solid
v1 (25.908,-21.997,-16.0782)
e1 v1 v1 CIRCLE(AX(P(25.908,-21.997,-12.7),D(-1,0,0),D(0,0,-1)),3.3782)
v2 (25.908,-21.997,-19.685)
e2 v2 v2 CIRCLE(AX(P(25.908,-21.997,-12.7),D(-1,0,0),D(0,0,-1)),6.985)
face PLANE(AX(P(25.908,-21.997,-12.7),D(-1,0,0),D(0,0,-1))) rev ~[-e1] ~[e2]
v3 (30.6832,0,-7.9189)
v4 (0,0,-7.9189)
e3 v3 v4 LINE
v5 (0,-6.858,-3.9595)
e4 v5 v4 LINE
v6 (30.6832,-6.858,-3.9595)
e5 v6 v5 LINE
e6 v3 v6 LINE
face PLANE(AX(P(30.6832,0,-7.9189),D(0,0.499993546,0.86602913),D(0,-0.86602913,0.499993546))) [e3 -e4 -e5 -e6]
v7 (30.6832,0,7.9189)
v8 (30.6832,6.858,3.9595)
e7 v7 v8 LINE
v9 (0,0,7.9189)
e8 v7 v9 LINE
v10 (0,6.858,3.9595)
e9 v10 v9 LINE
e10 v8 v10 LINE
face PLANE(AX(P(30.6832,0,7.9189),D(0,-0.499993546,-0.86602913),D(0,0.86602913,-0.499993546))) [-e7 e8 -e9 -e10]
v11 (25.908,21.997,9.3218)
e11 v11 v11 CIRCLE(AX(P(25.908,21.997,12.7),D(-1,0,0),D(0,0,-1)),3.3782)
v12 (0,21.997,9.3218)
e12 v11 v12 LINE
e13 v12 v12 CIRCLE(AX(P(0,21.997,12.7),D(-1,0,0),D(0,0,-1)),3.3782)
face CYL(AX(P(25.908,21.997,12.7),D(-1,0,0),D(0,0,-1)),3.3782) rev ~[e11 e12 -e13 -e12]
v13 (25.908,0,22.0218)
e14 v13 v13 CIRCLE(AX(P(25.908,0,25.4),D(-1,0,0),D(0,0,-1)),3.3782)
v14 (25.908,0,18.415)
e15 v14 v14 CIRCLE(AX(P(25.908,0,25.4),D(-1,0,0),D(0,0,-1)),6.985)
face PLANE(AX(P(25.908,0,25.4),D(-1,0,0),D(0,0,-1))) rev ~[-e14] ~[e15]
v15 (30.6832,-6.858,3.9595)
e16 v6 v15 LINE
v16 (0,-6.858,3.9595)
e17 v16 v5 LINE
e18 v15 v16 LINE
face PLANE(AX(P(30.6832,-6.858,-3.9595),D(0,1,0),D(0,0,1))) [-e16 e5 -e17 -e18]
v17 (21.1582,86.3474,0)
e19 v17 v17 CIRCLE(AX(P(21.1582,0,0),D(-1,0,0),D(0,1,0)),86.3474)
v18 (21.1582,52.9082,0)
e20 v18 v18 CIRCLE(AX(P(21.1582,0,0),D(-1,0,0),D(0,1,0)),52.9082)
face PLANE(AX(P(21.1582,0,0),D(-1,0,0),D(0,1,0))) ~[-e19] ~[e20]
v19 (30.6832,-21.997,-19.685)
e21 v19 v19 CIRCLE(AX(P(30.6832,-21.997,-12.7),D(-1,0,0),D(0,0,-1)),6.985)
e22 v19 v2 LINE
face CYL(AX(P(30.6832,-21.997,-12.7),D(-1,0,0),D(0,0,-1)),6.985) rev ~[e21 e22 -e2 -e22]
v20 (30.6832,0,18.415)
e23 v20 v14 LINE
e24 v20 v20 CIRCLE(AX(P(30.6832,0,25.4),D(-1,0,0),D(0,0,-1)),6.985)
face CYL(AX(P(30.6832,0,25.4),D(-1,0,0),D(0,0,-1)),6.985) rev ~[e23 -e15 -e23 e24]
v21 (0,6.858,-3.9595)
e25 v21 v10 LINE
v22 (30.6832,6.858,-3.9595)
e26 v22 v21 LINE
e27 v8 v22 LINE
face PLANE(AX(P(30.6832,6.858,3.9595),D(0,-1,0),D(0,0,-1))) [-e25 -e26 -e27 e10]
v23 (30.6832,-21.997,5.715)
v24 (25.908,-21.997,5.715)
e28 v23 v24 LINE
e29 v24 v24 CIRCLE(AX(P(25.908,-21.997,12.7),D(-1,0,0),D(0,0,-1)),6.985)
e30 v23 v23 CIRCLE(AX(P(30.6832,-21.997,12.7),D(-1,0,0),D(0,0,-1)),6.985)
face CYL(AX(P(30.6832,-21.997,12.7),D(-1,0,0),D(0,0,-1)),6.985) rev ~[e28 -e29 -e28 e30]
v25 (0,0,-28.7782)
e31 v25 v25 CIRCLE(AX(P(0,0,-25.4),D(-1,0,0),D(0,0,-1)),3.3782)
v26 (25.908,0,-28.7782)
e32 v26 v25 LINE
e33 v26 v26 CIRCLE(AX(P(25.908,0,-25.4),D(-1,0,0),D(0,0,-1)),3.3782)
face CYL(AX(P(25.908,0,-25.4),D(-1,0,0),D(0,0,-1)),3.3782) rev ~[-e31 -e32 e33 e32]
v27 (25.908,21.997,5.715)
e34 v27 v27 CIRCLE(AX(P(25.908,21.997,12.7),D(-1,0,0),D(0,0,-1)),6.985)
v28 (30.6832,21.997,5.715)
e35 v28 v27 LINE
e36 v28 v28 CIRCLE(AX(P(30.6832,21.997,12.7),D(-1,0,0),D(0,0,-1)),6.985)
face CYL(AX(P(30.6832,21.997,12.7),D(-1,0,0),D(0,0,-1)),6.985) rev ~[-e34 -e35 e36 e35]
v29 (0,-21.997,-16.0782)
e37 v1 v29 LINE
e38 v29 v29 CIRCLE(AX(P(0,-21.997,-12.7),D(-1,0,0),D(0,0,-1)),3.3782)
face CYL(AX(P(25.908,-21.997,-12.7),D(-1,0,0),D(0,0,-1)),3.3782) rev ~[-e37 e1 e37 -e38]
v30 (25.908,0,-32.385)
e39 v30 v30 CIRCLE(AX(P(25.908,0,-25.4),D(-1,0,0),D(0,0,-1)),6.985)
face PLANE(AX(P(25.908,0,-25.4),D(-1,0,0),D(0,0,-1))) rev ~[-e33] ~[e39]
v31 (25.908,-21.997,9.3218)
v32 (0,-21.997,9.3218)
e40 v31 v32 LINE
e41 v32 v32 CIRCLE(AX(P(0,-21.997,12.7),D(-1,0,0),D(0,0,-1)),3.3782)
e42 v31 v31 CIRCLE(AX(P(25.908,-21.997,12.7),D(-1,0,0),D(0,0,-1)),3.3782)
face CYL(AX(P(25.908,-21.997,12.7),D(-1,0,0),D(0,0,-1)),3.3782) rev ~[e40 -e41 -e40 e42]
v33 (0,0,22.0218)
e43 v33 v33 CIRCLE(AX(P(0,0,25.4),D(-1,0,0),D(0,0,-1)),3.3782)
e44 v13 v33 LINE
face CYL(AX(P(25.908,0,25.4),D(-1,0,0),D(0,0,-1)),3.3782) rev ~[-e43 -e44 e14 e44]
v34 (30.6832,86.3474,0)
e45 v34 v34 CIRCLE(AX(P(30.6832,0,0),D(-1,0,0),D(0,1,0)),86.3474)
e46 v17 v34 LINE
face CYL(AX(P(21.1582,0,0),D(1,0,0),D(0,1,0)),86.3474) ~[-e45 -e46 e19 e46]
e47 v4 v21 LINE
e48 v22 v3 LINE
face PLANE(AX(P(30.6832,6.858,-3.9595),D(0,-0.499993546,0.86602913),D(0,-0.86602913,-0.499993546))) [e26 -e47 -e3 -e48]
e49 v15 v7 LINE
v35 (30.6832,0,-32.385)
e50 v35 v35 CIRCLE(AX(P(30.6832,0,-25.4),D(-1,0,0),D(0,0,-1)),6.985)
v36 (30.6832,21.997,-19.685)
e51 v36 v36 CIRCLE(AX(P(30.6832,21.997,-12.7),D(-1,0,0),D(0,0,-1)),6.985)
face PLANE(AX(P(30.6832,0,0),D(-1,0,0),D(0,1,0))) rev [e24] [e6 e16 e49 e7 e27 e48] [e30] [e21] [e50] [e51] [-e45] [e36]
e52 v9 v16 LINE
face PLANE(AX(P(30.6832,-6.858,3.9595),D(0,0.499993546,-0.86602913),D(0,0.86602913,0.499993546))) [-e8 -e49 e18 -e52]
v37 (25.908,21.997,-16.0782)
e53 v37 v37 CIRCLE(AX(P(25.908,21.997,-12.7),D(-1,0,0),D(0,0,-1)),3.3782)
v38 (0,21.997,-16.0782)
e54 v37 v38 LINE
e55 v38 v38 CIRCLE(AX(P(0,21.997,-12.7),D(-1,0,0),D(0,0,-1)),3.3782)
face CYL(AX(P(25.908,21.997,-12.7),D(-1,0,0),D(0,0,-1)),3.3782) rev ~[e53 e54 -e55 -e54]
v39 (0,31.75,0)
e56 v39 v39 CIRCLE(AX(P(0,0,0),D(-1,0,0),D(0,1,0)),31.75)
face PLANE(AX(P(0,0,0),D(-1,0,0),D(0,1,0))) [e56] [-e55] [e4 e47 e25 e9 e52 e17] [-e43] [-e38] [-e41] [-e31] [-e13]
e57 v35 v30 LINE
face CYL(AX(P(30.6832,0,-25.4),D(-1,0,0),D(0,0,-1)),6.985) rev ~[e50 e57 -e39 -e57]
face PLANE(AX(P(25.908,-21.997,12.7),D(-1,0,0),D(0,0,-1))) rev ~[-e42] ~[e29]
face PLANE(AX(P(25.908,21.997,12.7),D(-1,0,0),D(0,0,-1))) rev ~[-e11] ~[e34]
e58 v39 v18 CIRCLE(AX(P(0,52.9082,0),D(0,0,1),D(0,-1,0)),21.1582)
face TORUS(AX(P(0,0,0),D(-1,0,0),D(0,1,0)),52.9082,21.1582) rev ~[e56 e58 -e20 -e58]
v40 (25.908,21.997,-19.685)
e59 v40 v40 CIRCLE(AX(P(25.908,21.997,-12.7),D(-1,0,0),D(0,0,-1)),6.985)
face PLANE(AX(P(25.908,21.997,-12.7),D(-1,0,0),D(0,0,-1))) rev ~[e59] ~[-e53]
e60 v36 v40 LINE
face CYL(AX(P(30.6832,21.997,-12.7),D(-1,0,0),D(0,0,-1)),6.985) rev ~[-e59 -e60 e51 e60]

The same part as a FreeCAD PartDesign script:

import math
import FreeCAD as App
import Part
import Sketcher
Q = App.Units.Quantity


def add_polygon(sketch, points):
    """Adds a closed chain of lines whose ends are joined by coincident constraints."""
    first, n = sketch.GeometryCount, len(points)
    for a, b in zip(points, points[1:] + points[:1]):
        sketch.addGeometry(Part.LineSegment(App.Vector(*a, 0), App.Vector(*b, 0)), False)
    for i in range(n):
        sketch.addConstraint(Sketcher.Constraint("Coincident", first + i, 2, first + (i + 1) % n, 1))

doc = App.newDocument("Part")
body = doc.addObject("PartDesign::Body", "Body")

sketch1 = body.newObject("Sketcher::SketchObject", "Sketch")
sketch1.AttachmentSupport = (doc.getObject("XY_Plane"), [""])
sketch1.MapMode = "FlatFace"
sketch1.addGeometry(Part.ArcOfCircle(Part.Circle(App.Vector(0, 52.9082, 0), App.Vector(0, 0, 1), 21.1582), math.radians(-90), math.radians(0)), False)
sketch1.addGeometry(Part.LineSegment(App.Vector(0, 31.75, 0), App.Vector(0, 0, 0)), False)
sketch1.addGeometry(Part.LineSegment(App.Vector(0, 0, 0), App.Vector(30.6832, 0, 0)), False)
sketch1.addGeometry(Part.LineSegment(App.Vector(30.6832, 0, 0), App.Vector(30.6832, 86.3474, 0)), False)
sketch1.addGeometry(Part.LineSegment(App.Vector(30.6832, 86.3474, 0), App.Vector(21.1582, 86.3474, 0)), False)
sketch1.addGeometry(Part.LineSegment(App.Vector(21.1582, 86.3474, 0), App.Vector(21.1582, 52.9082, 0)), False)
sketch1.addConstraint(Sketcher.Constraint("Coincident", 0, 1, 1, 1))
sketch1.addConstraint(Sketcher.Constraint("Coincident", 1, 2, 2, 1))
sketch1.addConstraint(Sketcher.Constraint("Coincident", 2, 2, 3, 1))
sketch1.addConstraint(Sketcher.Constraint("Coincident", 3, 2, 4, 1))
sketch1.addConstraint(Sketcher.Constraint("Coincident", 4, 2, 5, 1))
sketch1.addConstraint(Sketcher.Constraint("Tangent", 5, 2, 0, 2))
sketch1.addConstraint(Sketcher.Constraint("Vertical", 1))
sketch1.addConstraint(Sketcher.Constraint("Horizontal", 2))
sketch1.addConstraint(Sketcher.Constraint("Vertical", 3))
sketch1.addConstraint(Sketcher.Constraint("Horizontal", 4))
sketch1.addConstraint(Sketcher.Constraint("Vertical", 5))
sketch1.addConstraint(Sketcher.Constraint("Coincident", 1, 2, -1, 1))
sketch1.addConstraint(Sketcher.Constraint("PointOnObject", 0, 3, -2))
sketch1.addConstraint(Sketcher.Constraint("Radius", 0, Q("0.833 in")))
sketch1.addConstraint(Sketcher.Constraint("DistanceY", 1, 2, 1, 1, Q("1.25 in")))
sketch1.addConstraint(Sketcher.Constraint("DistanceX", 4, 2, 4, 1, Q("0.375 in")))
sketch1.addConstraint(Sketcher.Constraint("DistanceY", 3, 1, 3, 2, Q("3.3995 in")))
revolution = body.newObject("PartDesign::Revolution", "Revolution")
revolution.Profile = sketch1
revolution.ReferenceAxis = (sketch1, ["H_Axis"])
revolution.Angle = 360

sketch2 = body.newObject("Sketcher::SketchObject", "Sketch001")
sketch2.AttachmentSupport = (doc.getObject("YZ_Plane"), [""])
sketch2.MapMode = "FlatFace"
sketch2.AttachmentOffset = App.Placement(App.Vector(0, 0, 1.208 * 25.4), App.Rotation())
add_polygon(sketch2, [(6.858, -3.9595), (6.858, 3.9595), (0, 7.9189), (-6.858, 3.9595), (-6.858, -3.9595), (0, -7.9189)])
sketch2.addConstraint(Sketcher.Constraint("Vertical", 0))
sketch2.addConstraint(Sketcher.Constraint("Vertical", 3))
sketch2.addConstraint(Sketcher.Constraint("Symmetric", 0, 2, 3, 2, -1, 1))
sketch2.addConstraint(Sketcher.Constraint("Symmetric", 1, 2, 4, 2, -1, 1))
sketch2.addConstraint(Sketcher.Constraint("PointOnObject", 1, 2, -2))
sketch2.addConstraint(Sketcher.Constraint("Parallel", 2, 5))
sketch2.addConstraint(Sketcher.Constraint("Horizontal", 0, 2, 2, 2))
sketch2.addConstraint(Sketcher.Constraint("DistanceX", 2, 2, 0, 2, Q("0.54 in")))
sketch2.addConstraint(Sketcher.Constraint("Angle", 1, Q("150.0004 deg")))
sketch2.addConstraint(Sketcher.Constraint("DistanceY", 0, 1, 0, 2, Q("7.919 mm")))
pocket1 = body.newObject("PartDesign::Pocket", "Pocket")
pocket1.Profile = sketch2
pocket1.Type = "ThroughAll"

sketch3 = body.newObject("Sketcher::SketchObject", "Sketch002")
sketch3.AttachmentSupport = (doc.getObject("YZ_Plane"), [""])
sketch3.MapMode = "FlatFace"
sketch3.AttachmentOffset = App.Placement(App.Vector(0, 0, 1.208 * 25.4), App.Rotation())
sketch3.addGeometry(Part.Circle(App.Vector(0, 25.4, 0), App.Vector(0, 0, 1), 3.3782), False)
sketch3.addGeometry(Part.Circle(App.Vector(-21.997, 12.7, 0), App.Vector(0, 0, 1), 3.3782), False)
sketch3.addGeometry(Part.Circle(App.Vector(-21.997, -12.7, 0), App.Vector(0, 0, 1), 3.3782), False)
sketch3.addGeometry(Part.Circle(App.Vector(0, -25.4, 0), App.Vector(0, 0, 1), 3.3782), False)
sketch3.addGeometry(Part.Circle(App.Vector(21.997, -12.7, 0), App.Vector(0, 0, 1), 3.3782), False)
sketch3.addGeometry(Part.Circle(App.Vector(21.997, 12.7, 0), App.Vector(0, 0, 1), 3.3782), False)
sketch3.addConstraint(Sketcher.Constraint("Equal", 0, 1))
sketch3.addConstraint(Sketcher.Constraint("Equal", 1, 2))
sketch3.addConstraint(Sketcher.Constraint("Equal", 2, 3))
sketch3.addConstraint(Sketcher.Constraint("Equal", 3, 4))
sketch3.addConstraint(Sketcher.Constraint("Equal", 4, 5))
sketch3.addConstraint(Sketcher.Constraint("Symmetric", 0, 3, 3, 3, -1, 1))
sketch3.addConstraint(Sketcher.Constraint("Symmetric", 1, 3, 4, 3, -1, 1))
sketch3.addConstraint(Sketcher.Constraint("Symmetric", 2, 3, 5, 3, -1, 1))
sketch3.addConstraint(Sketcher.Constraint("Symmetric", 2, 3, 4, 3, -2))
sketch3.addConstraint(Sketcher.Constraint("PointOnObject", 0, 3, -2))
sketch3.addConstraint(Sketcher.Constraint("Diameter", 0, Q("0.266 in")))
sketch3.addConstraint(Sketcher.Constraint("DistanceY", -1, 1, 0, 3, Q("1 in")))
sketch3.addConstraint(Sketcher.Constraint("DistanceY", 2, 3, 1, 3, Q("1 in")))
sketch3.addConstraint(Sketcher.Constraint("DistanceX", 1, 3, -1, 1, Q("21.997 mm")))
doc.recompute()
hole = body.newObject("PartDesign::Hole", "Hole")
hole.Profile = sketch3
hole.ThreadType = "None"
hole.Diameter = Q("0.266 in")
hole.DepthType = "ThroughAll"
hole.HoleCutType = "Counterbore"
hole.HoleCutDiameter = Q("0.55 in")
hole.HoleCutDepth = Q("0.188 in")

doc.recompute()
